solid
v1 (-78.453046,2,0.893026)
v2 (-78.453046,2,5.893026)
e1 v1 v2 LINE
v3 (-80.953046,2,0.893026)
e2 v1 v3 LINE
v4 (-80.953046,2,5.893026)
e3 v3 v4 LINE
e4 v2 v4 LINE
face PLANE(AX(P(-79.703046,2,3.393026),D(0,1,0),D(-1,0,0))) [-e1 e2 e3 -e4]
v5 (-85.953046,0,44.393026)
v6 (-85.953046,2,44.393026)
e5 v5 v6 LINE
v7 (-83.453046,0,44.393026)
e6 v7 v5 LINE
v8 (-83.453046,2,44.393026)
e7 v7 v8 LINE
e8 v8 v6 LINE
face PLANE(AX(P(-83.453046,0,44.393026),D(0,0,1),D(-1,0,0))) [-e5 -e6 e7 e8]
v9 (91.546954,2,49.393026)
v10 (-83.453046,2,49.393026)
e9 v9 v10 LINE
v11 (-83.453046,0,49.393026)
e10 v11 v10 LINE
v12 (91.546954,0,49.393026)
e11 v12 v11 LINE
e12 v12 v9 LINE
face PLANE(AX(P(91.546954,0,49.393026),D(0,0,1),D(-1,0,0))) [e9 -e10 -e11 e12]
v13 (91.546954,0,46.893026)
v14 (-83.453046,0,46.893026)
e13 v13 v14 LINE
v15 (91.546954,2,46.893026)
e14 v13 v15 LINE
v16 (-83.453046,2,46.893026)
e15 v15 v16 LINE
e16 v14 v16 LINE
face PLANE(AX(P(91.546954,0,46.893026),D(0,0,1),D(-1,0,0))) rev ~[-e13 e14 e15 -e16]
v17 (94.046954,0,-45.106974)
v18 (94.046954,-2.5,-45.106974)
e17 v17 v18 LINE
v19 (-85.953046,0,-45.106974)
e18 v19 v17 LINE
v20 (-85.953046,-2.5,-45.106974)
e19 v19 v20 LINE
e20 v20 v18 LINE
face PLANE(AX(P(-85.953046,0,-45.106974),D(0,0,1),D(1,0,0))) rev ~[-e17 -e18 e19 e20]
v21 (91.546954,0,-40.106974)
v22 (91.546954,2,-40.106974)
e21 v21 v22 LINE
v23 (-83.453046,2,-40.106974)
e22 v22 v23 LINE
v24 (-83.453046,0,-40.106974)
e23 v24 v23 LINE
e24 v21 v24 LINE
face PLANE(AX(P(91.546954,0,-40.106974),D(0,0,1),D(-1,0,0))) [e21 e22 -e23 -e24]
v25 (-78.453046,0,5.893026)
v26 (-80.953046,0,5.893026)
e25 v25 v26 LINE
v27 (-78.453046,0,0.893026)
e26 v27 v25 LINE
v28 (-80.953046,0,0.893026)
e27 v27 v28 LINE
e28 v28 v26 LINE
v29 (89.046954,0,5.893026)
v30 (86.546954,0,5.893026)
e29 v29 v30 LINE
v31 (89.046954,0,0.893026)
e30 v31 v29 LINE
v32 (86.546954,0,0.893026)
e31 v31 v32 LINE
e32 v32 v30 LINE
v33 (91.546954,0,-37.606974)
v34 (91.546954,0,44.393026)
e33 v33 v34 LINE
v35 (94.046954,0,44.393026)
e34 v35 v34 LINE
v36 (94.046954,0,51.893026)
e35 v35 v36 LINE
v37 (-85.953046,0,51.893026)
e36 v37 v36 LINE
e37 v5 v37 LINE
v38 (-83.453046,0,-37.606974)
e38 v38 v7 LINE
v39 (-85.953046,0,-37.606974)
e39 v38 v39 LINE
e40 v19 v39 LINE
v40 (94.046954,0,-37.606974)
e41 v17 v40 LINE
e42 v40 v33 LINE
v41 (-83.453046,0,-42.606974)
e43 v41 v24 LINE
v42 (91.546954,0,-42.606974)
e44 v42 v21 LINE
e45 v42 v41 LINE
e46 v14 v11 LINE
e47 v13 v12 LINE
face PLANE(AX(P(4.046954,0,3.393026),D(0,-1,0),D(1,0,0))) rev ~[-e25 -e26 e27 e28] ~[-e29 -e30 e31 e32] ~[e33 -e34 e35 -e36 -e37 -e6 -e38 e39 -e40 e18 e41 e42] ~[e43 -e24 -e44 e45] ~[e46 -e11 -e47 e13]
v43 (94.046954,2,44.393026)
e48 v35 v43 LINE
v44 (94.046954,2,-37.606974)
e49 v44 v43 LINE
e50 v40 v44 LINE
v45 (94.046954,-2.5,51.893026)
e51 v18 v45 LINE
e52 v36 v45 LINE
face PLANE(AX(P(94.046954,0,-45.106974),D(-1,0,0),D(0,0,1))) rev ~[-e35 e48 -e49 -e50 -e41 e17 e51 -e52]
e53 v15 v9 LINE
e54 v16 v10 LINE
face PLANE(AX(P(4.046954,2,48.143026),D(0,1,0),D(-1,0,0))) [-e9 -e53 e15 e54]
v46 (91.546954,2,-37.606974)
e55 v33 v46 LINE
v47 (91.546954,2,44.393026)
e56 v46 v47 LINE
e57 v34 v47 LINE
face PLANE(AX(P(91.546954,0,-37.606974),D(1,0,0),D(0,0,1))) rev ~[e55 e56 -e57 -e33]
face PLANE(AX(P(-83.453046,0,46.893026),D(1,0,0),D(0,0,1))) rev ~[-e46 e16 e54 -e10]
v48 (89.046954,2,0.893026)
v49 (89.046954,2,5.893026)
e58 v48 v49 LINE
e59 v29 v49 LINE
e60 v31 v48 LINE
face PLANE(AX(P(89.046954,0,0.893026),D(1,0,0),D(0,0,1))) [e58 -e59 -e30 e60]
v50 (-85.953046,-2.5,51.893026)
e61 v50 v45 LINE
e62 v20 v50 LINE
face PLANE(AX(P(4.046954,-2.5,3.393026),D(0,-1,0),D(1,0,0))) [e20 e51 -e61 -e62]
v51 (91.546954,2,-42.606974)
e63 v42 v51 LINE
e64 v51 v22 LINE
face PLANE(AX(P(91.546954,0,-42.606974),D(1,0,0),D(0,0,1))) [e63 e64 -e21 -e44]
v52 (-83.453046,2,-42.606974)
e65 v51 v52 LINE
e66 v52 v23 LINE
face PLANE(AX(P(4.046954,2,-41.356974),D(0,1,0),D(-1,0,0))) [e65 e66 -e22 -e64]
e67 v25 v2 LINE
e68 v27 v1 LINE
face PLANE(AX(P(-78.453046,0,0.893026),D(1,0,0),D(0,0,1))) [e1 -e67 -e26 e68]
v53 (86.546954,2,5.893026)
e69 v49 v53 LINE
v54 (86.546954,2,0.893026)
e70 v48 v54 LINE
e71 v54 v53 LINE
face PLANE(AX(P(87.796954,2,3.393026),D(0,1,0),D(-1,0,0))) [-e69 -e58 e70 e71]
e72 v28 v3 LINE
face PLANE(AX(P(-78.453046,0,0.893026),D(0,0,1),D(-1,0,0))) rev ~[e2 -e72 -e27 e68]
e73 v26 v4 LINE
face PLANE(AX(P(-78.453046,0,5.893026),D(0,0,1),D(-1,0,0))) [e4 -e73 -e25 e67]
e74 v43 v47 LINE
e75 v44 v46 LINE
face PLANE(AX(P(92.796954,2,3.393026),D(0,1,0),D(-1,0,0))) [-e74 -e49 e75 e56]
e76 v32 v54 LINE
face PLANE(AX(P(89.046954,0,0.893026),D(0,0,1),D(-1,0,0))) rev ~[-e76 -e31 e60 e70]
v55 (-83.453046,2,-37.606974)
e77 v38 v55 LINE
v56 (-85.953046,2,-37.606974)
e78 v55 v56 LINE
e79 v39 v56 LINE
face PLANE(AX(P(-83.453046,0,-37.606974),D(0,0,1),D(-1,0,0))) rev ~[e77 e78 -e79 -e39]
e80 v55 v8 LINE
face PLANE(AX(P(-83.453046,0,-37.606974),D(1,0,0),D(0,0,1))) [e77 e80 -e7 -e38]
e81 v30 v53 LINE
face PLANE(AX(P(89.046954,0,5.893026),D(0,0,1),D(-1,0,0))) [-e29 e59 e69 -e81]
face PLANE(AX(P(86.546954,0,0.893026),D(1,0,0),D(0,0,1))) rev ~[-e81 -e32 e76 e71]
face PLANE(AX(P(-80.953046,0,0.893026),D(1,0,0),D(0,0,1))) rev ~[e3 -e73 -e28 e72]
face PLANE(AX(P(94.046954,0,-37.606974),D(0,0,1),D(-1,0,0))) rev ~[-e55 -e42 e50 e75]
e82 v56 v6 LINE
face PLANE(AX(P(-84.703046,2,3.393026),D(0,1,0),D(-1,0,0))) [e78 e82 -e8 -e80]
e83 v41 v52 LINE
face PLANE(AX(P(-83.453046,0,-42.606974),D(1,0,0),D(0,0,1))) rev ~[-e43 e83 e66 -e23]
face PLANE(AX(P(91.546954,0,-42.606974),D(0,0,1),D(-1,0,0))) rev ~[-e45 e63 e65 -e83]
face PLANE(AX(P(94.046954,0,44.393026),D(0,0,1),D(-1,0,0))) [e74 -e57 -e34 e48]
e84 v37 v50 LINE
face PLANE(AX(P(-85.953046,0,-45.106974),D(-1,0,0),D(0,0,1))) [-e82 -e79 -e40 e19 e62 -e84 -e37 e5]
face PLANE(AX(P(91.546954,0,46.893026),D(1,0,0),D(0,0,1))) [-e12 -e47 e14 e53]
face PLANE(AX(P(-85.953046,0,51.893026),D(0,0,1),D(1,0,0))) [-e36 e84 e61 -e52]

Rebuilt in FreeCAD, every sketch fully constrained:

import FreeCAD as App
import Part
import Sketcher
from FreeCAD import Vector
Q = App.Units.Quantity

doc = App.newDocument("Part")
params = doc.addObject("Spreadsheet::Sheet", "Params")
for row, (alias, value) in enumerate([
    ("sketch1_width", "180 mm"),
    ("sketch1_height", "97 mm"),
    ("pad1_length", "2.5 mm"),
    ("sketch2_width", "175 mm"),
    ("sketch2_height", "82 mm"),
    ("sketch2_height2", "5 mm"),
    ("sketch2_width2", "2.5 mm"),
    ("pad2_length", "2 mm"),
], start=1):
    params.set(f"A{row}", alias)
    params.set(f"B{row}", "=" + value)
    params.setAlias(f"B{row}", alias)

body = doc.addObject("PartDesign::Body", "Body")

sketch1 = doc.addObject("Sketcher::SketchObject", "Sketch")
body.addObject(sketch1)
sketch1.AttachmentSupport = (doc.XZ_Plane, [""])
sketch1.MapMode = "FlatFace"
sketch1.addGeometry([
    Part.LineSegment(Vector(-86, 52, 0), Vector(-86, -45, 0)),
    Part.LineSegment(Vector(-86, -45, 0), Vector(94, -45, 0)),
    Part.LineSegment(Vector(94, -45, 0), Vector(94, 52, 0)),
    Part.LineSegment(Vector(94, 52, 0), Vector(-86, 52, 0)),
], False)
sketch1.addConstraint([
    Sketcher.Constraint("Coincident", 0, 2, 1, 1),
    Sketcher.Constraint("Coincident", 1, 2, 2, 1),
    Sketcher.Constraint("Coincident", 2, 2, 3, 1),
    Sketcher.Constraint("Coincident", 3, 2, 0, 1),
    Sketcher.Constraint("Vertical", 0),
    Sketcher.Constraint("Horizontal", 1),
    Sketcher.Constraint("Vertical", 2),
    Sketcher.Constraint("Horizontal", 3),
    Sketcher.Constraint("DistanceX", 1, 1, 1, 2, Q("180 mm")),
    Sketcher.Constraint("DistanceY", 0, 2, 0, 1, Q("97 mm")),
    Sketcher.Constraint("DistanceX", 0, 2, -1, 1, Q("85.953046 mm")),
    Sketcher.Constraint("DistanceY", 0, 2, -1, 1, Q("45.106974 mm")),
])
sketch1.setExpression("Constraints[8]", "Params.sketch1_width")
sketch1.setExpression("Constraints[9]", "Params.sketch1_height")
pad1 = doc.addObject("PartDesign::Pad", "Pad")
body.addObject(pad1)
pad1.Profile = sketch1
pad1.setExpression("Length", "Params.pad1_length")

sketch2 = doc.addObject("Sketcher::SketchObject", "Sketch001")
body.addObject(sketch2)
sketch2.AttachmentSupport = (doc.XZ_Plane, [""])
sketch2.MapMode = "FlatFace"
sketch2.addGeometry([
    Part.LineSegment(Vector(91.5, -40.1, 0), Vector(91.5, -42.6, 0)),
    Part.LineSegment(Vector(91.5, -42.6, 0), Vector(-83.5, -42.6, 0)),
    Part.LineSegment(Vector(-83.5, -42.6, 0), Vector(-83.5, -40.1, 0)),
    Part.LineSegment(Vector(-83.5, -40.1, 0), Vector(91.5, -40.1, 0)),
    Part.LineSegment(Vector(91.5, 49.4, 0), Vector(91.5, 46.9, 0)),
    Part.LineSegment(Vector(91.5, 46.9, 0), Vector(-83.5, 46.9, 0)),
    Part.LineSegment(Vector(-83.5, 46.9, 0), Vector(-83.5, 49.4, 0)),
    Part.LineSegment(Vector(-83.5, 49.4, 0), Vector(91.5, 49.4, 0)),
    Part.LineSegment(Vector(-83.5, 44.4, 0), Vector(-83.5, -37.6, 0)),
    Part.LineSegment(Vector(-83.5, -37.6, 0), Vector(-86, -37.6, 0)),
    Part.LineSegment(Vector(-86, -37.6, 0), Vector(-86, 44.4, 0)),
    Part.LineSegment(Vector(-86, 44.4, 0), Vector(-83.5, 44.4, 0)),
    Part.LineSegment(Vector(94, 44.4, 0), Vector(94, -37.6, 0)),
    Part.LineSegment(Vector(94, -37.6, 0), Vector(91.5, -37.6, 0)),
    Part.LineSegment(Vector(91.5, -37.6, 0), Vector(91.5, 44.4, 0)),
    Part.LineSegment(Vector(91.5, 44.4, 0), Vector(94, 44.4, 0)),
    Part.LineSegment(Vector(-78.5, 5.9, 0), Vector(-78.5, 0.9, 0)),
    Part.LineSegment(Vector(-78.5, 0.9, 0), Vector(-81, 0.9, 0)),
    Part.LineSegment(Vector(-81, 0.9, 0), Vector(-81, 5.9, 0)),
    Part.LineSegment(Vector(-81, 5.9, 0), Vector(-78.5, 5.9, 0)),
    Part.LineSegment(Vector(89, 5.9, 0), Vector(89, 0.9, 0)),
    Part.LineSegment(Vector(89, 0.9, 0), Vector(86.5, 0.9, 0)),
    Part.LineSegment(Vector(86.5, 0.9, 0), Vector(86.5, 5.9, 0)),
    Part.LineSegment(Vector(86.5, 5.9, 0), Vector(89, 5.9, 0)),
], False)
sketch2.addConstraint([
    Sketcher.Constraint("Coincident", 0, 2, 1, 1),
    Sketcher.Constraint("Coincident", 1, 2, 2, 1),
    Sketcher.Constraint("Coincident", 2, 2, 3, 1),
    Sketcher.Constraint("Coincident", 3, 2, 0, 1),
    Sketcher.Constraint("Coincident", 4, 2, 5, 1),
    Sketcher.Constraint("Coincident", 5, 2, 6, 1),
    Sketcher.Constraint("Coincident", 6, 2, 7, 1),
    Sketcher.Constraint("Coincident", 7, 2, 4, 1),
    Sketcher.Constraint("Coincident", 8, 2, 9, 1),
    Sketcher.Constraint("Coincident", 9, 2, 10, 1),
    Sketcher.Constraint("Coincident", 10, 2, 11, 1),
    Sketcher.Constraint("Coincident", 11, 2, 8, 1),
    Sketcher.Constraint("Coincident", 12, 2, 13, 1),
    Sketcher.Constraint("Coincident", 13, 2, 14, 1),
    Sketcher.Constraint("Coincident", 14, 2, 15, 1),
    Sketcher.Constraint("Coincident", 15, 2, 12, 1),
    Sketcher.Constraint("Coincident", 16, 2, 17, 1),
    Sketcher.Constraint("Coincident", 17, 2, 18, 1),
    Sketcher.Constraint("Coincident", 18, 2, 19, 1),
    Sketcher.Constraint("Coincident", 19, 2, 16, 1),
    Sketcher.Constraint("Coincident", 20, 2, 21, 1),
    Sketcher.Constraint("Coincident", 21, 2, 22, 1),
    Sketcher.Constraint("Coincident", 22, 2, 23, 1),
    Sketcher.Constraint("Coincident", 23, 2, 20, 1),
    Sketcher.Constraint("Vertical", 0),
    Sketcher.Constraint("Horizontal", 1),
    Sketcher.Constraint("Vertical", 2),
    Sketcher.Constraint("Horizontal", 3),
    Sketcher.Constraint("Vertical", 4),
    Sketcher.Constraint("Horizontal", 5),
    Sketcher.Constraint("Vertical", 6),
    Sketcher.Constraint("Horizontal", 7),
    Sketcher.Constraint("Vertical", 8),
    Sketcher.Constraint("Horizontal", 9),
    Sketcher.Constraint("Vertical", 10),
    Sketcher.Constraint("Horizontal", 11),
    Sketcher.Constraint("Vertical", 12),
    Sketcher.Constraint("Horizontal", 13),
    Sketcher.Constraint("Vertical", 14),
    Sketcher.Constraint("Horizontal", 15),
    Sketcher.Constraint("Vertical", 16),
    Sketcher.Constraint("Horizontal", 17),
    Sketcher.Constraint("Vertical", 18),
    Sketcher.Constraint("Horizontal", 19),
    Sketcher.Constraint("Vertical", 20),
    Sketcher.Constraint("Horizontal", 21),
    Sketcher.Constraint("Vertical", 22),
    Sketcher.Constraint("Horizontal", 23),
    Sketcher.Constraint("Horizontal", 9, 2, 12, 2),
    Sketcher.Constraint("Horizontal", 11, 2, 14, 2),
    Sketcher.Constraint("Horizontal", 17, 2, 20, 2),
    Sketcher.Constraint("Horizontal", 19, 2, 22, 2),
    Sketcher.Constraint("Vertical", 3, 2, 4, 2),
    Sketcher.Constraint("Vertical", 2, 2, 5, 2),
    Sketcher.Constraint("Vertical", 6, 2, 8, 2),
    Sketcher.Constraint("Vertical", 7, 2, 13, 2),
    Sketcher.Constraint("Equal", 11, 13),
    Sketcher.Constraint("Equal", 15, 17),
    Sketcher.Constraint("Equal", 19, 21),
    Sketcher.Constraint("Equal", 23, 0),
    Sketcher.Constraint("Equal", 2, 4),
    Sketcher.Constraint("DistanceX", 1, 2, 1, 1, Q("175 mm")),
    Sketcher.Constraint("DistanceY", 8, 2, 8, 1, Q("82 mm")),
    Sketcher.Constraint("DistanceY", 16, 2, 16, 1, Q("5 mm")),
    Sketcher.Constraint("DistanceX", 9, 2, 9, 1, Q("2.5 mm")),
    Sketcher.Constraint("DistanceY", 3, 2, 4, 2, Q("87 mm")),
    Sketcher.Constraint("DistanceY", 1, 2, 8, 2, Q("5 mm")),
    Sketcher.Constraint("DistanceX", 8, 2, 16, 2, Q("5 mm")),
    Sketcher.Constraint("DistanceY", 2, 2, 16, 2, Q("41 mm")),
    Sketcher.Constraint("DistanceX", 20, 2, 12, 2, Q("5 mm")),
    Sketcher.Constraint("DistanceX", -1, 1, 0, 2, Q("91.546954 mm")),
    Sketcher.Constraint("DistanceY", 0, 2, -1, 1, Q("42.606974 mm")),
])
sketch2.setExpression("Constraints[61]", "Params.sketch2_width")
sketch2.setExpression("Constraints[62]", "Params.sketch2_height")
sketch2.setExpression("Constraints[63]", "Params.sketch2_height2")
sketch2.setExpression("Constraints[64]", "Params.sketch2_width2")
pad2 = doc.addObject("PartDesign::Pad", "Pad001")
body.addObject(pad2)
pad2.Profile = sketch2
pad2.setExpression("Length", "Params.pad2_length")
pad2.Reversed = True

doc.recompute()
